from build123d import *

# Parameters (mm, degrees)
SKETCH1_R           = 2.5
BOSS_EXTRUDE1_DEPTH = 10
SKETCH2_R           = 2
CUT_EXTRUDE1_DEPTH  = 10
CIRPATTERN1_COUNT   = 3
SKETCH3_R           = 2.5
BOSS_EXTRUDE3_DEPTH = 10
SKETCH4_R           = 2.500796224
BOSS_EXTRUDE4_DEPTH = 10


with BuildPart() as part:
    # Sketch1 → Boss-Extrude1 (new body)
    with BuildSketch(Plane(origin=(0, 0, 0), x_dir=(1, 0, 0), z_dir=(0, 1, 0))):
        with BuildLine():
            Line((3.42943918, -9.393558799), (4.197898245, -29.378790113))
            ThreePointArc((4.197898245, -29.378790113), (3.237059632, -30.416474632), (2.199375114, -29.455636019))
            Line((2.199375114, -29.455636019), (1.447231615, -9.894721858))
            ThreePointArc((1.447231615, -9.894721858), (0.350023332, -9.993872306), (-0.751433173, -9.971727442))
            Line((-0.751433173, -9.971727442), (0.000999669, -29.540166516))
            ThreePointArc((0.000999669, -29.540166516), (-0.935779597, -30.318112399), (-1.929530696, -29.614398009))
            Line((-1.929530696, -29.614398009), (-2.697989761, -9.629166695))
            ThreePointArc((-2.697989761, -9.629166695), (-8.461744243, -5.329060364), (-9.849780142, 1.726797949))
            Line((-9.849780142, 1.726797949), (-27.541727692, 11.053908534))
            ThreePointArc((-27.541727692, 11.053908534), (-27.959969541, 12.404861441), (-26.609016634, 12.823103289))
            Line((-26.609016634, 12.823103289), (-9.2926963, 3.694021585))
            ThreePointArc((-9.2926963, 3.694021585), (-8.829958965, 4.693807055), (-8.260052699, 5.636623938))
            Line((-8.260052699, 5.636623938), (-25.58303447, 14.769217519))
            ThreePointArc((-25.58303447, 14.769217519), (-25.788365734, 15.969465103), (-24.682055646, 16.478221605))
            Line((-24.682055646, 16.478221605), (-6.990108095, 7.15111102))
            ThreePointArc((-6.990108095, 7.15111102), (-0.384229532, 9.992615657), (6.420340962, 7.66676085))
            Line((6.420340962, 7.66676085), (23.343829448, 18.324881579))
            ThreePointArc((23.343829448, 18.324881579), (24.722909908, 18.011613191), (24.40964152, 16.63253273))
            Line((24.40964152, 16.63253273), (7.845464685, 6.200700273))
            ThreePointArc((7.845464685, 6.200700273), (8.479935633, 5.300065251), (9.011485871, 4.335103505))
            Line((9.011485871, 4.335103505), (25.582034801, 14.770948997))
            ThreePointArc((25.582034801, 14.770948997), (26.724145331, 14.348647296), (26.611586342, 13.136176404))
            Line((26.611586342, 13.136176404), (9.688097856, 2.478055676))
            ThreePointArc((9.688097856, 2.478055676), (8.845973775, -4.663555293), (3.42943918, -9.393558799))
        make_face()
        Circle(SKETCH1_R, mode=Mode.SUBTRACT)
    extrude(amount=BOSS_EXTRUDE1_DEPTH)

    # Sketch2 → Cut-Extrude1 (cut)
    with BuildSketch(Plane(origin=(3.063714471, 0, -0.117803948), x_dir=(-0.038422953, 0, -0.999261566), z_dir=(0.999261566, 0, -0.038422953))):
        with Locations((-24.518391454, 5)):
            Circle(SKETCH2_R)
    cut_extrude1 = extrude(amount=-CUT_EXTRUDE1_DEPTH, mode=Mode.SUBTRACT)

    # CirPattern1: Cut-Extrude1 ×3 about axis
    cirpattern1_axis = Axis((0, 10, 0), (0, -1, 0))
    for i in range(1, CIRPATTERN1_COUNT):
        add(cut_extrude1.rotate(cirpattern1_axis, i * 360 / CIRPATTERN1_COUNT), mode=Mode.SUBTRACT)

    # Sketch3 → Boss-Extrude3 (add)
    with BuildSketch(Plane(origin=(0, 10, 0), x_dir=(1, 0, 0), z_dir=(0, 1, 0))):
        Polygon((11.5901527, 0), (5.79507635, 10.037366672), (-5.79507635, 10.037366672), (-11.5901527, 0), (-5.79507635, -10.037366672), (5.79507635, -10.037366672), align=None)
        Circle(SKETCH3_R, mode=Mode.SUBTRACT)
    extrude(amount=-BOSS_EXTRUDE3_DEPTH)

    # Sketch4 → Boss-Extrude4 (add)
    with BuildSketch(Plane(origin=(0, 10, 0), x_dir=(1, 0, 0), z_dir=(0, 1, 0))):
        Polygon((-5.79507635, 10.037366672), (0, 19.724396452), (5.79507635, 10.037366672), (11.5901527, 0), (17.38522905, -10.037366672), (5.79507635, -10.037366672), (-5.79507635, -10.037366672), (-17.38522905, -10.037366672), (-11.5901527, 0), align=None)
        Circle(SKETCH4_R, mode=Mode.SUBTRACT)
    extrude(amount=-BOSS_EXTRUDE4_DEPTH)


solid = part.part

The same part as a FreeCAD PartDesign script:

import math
import FreeCAD as App
import Part
import Sketcher

V = App.Vector
Q = App.Units.Quantity


def add_polygon(sketch, points):
    """Adds a closed chain of lines whose ends are joined by coincident constraints."""
    first, n = sketch.GeometryCount, len(points)
    for a, b in zip(points, points[1:] + points[:1]):
        sketch.addGeometry(Part.LineSegment(App.Vector(*a, 0), App.Vector(*b, 0)), False)
    for i in range(n):
        sketch.addConstraint(Sketcher.Constraint("Coincident", first + i, 2, first + (i + 1) % n, 1))

doc = App.newDocument("Part")
body = doc.addObject("PartDesign::Body", "Body")

sketch1 = body.newObject("Sketcher::SketchObject", "Sketch")
sketch1.AttachmentSupport = (doc.getObject("XZ_Plane"), [""])
sketch1.MapMode = "FlatFace"
sketch1.addGeometry([
    Part.LineSegment(V(4.2, 29.4, 0), V(3.4, 9.4, 0)),
    Part.ArcOfCircle(Part.Circle(V(0, 0, 0), V(0, 0, 1), 10), math.radians(-14), math.radians(70)),
    Part.LineSegment(V(9.7, -2.5, 0), V(26.6, -13.1, 0)),
    Part.ArcOfCircle(Part.Circle(V(25.9, -13.8, 0), V(0, 0, 1), 1), math.radians(-107), math.radians(43)),
    Part.LineSegment(V(25.6, -14.8, 0), V(9, -4.3, 0)),
    Part.ArcOfCircle(Part.Circle(V(0, 0, 0), V(0, 0, 1), 10), math.radians(-38.32), math.radians(-25.69)),
    Part.LineSegment(V(7.8, -6.2, 0), V(24.4, -16.6, 0)),
    Part.ArcOfCircle(Part.Circle(V(23.9, -17.5, 0), V(0, 0, 1), 1), math.radians(-122), math.radians(58)),
    Part.LineSegment(V(23.3, -18.3, 0), V(6.4, -7.7, 0)),
    Part.ArcOfCircle(Part.Circle(V(0, 0, 0), V(0, 0, 1), 10), math.radians(-134), math.radians(-50)),
    Part.LineSegment(V(-7, -7.2, 0), V(-24.7, -16.5, 0)),
    Part.ArcOfCircle(Part.Circle(V(-24.9, -15.5, 0), V(0, 0, 1), 1), math.radians(133), math.radians(283)),
    Part.LineSegment(V(-25.6, -14.8, 0), V(-8.3, -5.6, 0)),
    Part.ArcOfCircle(Part.Circle(V(0, 0, 0), V(0, 0, 1), 10), math.radians(-158.32), math.radians(-145.69)),
    Part.LineSegment(V(-9.3, -3.7, 0), V(-26.6, -12.8, 0)),
    Part.ArcOfCircle(Part.Circle(V(-27.1, -11.9, 0), V(0, 0, 1), 1), math.radians(118), math.radians(298)),
    Part.LineSegment(V(-27.5, -11.1, 0), V(-9.8, -1.7, 0)),
    Part.ArcOfCircle(Part.Circle(V(0, 0, 0), V(0, 0, 1), 10), math.radians(106), math.radians(190)),
    Part.LineSegment(V(-2.7, 9.6, 0), V(-1.9, 29.6, 0)),
    Part.ArcOfCircle(Part.Circle(V(-1, 29.3, 0), V(0, 0, 1), 1), math.radians(13), math.radians(163)),
    Part.LineSegment(V(0, 29.5, 0), V(-0.8, 10, 0)),
    Part.ArcOfCircle(Part.Circle(V(0, 0, 0), V(0, 0, 1), 10), math.radians(81.68), math.radians(94.31)),
    Part.LineSegment(V(1.4, 9.9, 0), V(2.2, 29.5, 0)),
    Part.ArcOfCircle(Part.Circle(V(3.2, 29.4, 0), V(0, 0, 1), 1), math.radians(-2), math.radians(178)),
    Part.Circle(V(0, 0, 0), V(0, 0, 1), 2.5),
], False)
sketch1.addConstraint([
    Sketcher.Constraint("Coincident", 0, 2, 1, 2),
    Sketcher.Constraint("Coincident", 1, 1, 2, 1),
    Sketcher.Constraint("Coincident", 2, 2, 3, 2),
    Sketcher.Constraint("Coincident", 3, 1, 4, 1),
    Sketcher.Constraint("Coincident", 4, 2, 5, 2),
    Sketcher.Constraint("Coincident", 5, 1, 6, 1),
    Sketcher.Constraint("Tangent", 6, 2, 7, 2),
    Sketcher.Constraint("Tangent", 7, 1, 8, 1),
    Sketcher.Constraint("Coincident", 8, 2, 9, 2),
    Sketcher.Constraint("Coincident", 9, 1, 10, 1),
    Sketcher.Constraint("Coincident", 10, 2, 11, 2),
    Sketcher.Constraint("Coincident", 11, 1, 12, 1),
    Sketcher.Constraint("Coincident", 12, 2, 13, 2),
    Sketcher.Constraint("Coincident", 13, 1, 14, 1),
    Sketcher.Constraint("Tangent", 14, 2, 15, 2),
    Sketcher.Constraint("Tangent", 15, 1, 16, 1),
    Sketcher.Constraint("Coincident", 16, 2, 17, 2),
    Sketcher.Constraint("Coincident", 17, 1, 18, 1),
    Sketcher.Constraint("Coincident", 18, 2, 19, 2),
    Sketcher.Constraint("Coincident", 19, 1, 20, 1),
    Sketcher.Constraint("Coincident", 20, 2, 21, 2),
    Sketcher.Constraint("Coincident", 21, 1, 22, 1),
    Sketcher.Constraint("Tangent", 22, 2, 23, 2),
    Sketcher.Constraint("Tangent", 23, 1, 0, 1),
    Sketcher.Constraint("Coincident", 1, 3, -1, 1),
    Sketcher.Constraint("Coincident", 5, 3, -1, 1),
    Sketcher.Constraint("Coincident", 9, 3, -1, 1),
    Sketcher.Constraint("Coincident", 13, 3, -1, 1),
    Sketcher.Constraint("Coincident", 17, 3, -1, 1),
    Sketcher.Constraint("Coincident", 21, 3, -1, 1),
    Sketcher.Constraint("Coincident", 24, 3, -1, 1),
    Sketcher.Constraint("Equal", 1, 5),
    Sketcher.Constraint("Equal", 3, 7),
    Sketcher.Constraint("Equal", 5, 9),
    Sketcher.Constraint("Equal", 7, 11),
    Sketcher.Constraint("Equal", 9, 13),
    Sketcher.Constraint("Equal", 11, 15),
    Sketcher.Constraint("Equal", 13, 17),
    Sketcher.Constraint("Equal", 15, 19),
    Sketcher.Constraint("Equal", 17, 21),
    Sketcher.Constraint("Equal", 19, 23),
    Sketcher.Constraint("Parallel", 2, 4),
    Sketcher.Constraint("Parallel", 4, 6),
    Sketcher.Constraint("Parallel", 6, 8),
    Sketcher.Constraint("Parallel", 10, 12),
    Sketcher.Constraint("Parallel", 12, 14),
    Sketcher.Constraint("Parallel", 14, 16),
    Sketcher.Constraint("Parallel", 0, 18),
    Sketcher.Constraint("Parallel", 18, 20),
    Sketcher.Constraint("Parallel", 20, 22),
    Sketcher.Constraint("Equal", 0, 2),
    Sketcher.Constraint("Equal", 2, 8),
    Sketcher.Constraint("Equal", 8, 10),
    Sketcher.Constraint("Equal", 4, 12),
    Sketcher.Constraint("Equal", 6, 14),
    Sketcher.Constraint("Equal", 10, 16),
    Sketcher.Constraint("Equal", 16, 18),
    Sketcher.Constraint("Equal", 12, 20),
    Sketcher.Constraint("Equal", 14, 22),
    Sketcher.Constraint("Diameter", 24, 5.0),
    Sketcher.Constraint("Radius", 1, 10.0),
    Sketcher.Constraint("Radius", 3, 1.0),
    Sketcher.Constraint("Distance", 0, 20.0),
    Sketcher.Constraint("DistanceX", -1, 1, 19, 1, 0.001),
    Sketcher.Constraint("DistanceY", 17, 1, 19, 1, 19.911),
    Sketcher.Constraint("Distance", 4, 19.5829),
    Sketcher.Constraint("DistanceY", 5, 1, -1, 1, 6.2007),
    Sketcher.Constraint("DistanceY", -1, 1, 18, 2, 29.614398),
    Sketcher.Constraint("DistanceX", -1, 1, 23, 1, 4.197898),
    Sketcher.Constraint("DistanceX", 7, 3, 3, 1, 1.705299),
    Sketcher.Constraint("DistanceY", 11, 3, 15, 1, 4.449201),
    Sketcher.Constraint("DistanceX", -1, 1, 3, 3, 25.877971),
    Sketcher.Constraint("DistanceX", 11, 3, -1, 1, 24.903768),
    Sketcher.Constraint("DistanceY", 11, 3, -1, 1, 15.50311),
])
pad1 = body.newObject("PartDesign::Pad", "Pad")
pad1.Profile = sketch1
pad1.Length = 10
pad1.Reversed = True

sketch2 = body.newObject("Sketcher::SketchObject", "Sketch001")
sketch2.Placement = App.Placement(V(3.063714, 0, -0.117804), App.Rotation(V(-0.038422953, 0, -0.999261566), V(0, 1.000000001, 0), V(0.999261566, 0, -0.038422953), "ZXY"))
sketch2.addGeometry(Part.Circle(V(-24.5, 5, 0), V(0, 0, 1), 2), False)
sketch2.addConstraint([
    Sketcher.Constraint("Diameter", 0, 4.0),
    Sketcher.Constraint("DistanceY", -1, 1, 0, 3, 5.0),
    Sketcher.Constraint("DistanceX", 0, 3, -1, 1, 24.518391),
])
pocket1 = body.newObject("PartDesign::Pocket", "Pocket")
pocket1.Profile = sketch2
pocket1.Length = 10
doc.recompute()

polarpattern = body.newObject("PartDesign::PolarPattern", "PolarPattern")
polarpattern.Originals = [pocket1]
polarpattern.Axis = (doc.getObject("Y_Axis"), [""])
polarpattern.Angle = 360
polarpattern.Occurrences = 3
body.Tip = polarpattern

sketch3 = body.newObject("Sketcher::SketchObject", "Sketch002")
sketch3.AttachmentSupport = (doc.getObject("XZ_Plane"), [""])
sketch3.MapMode = "FlatFace"
sketch3.AttachmentOffset = App.Placement(V(0, 0, -10), App.Rotation())
add_polygon(sketch3, [(11.6, 0), (5.8, -10), (-5.8, -10), (-11.6, 0), (-5.8, 10), (5.8, 10)])
sketch3.addGeometry(Part.Circle(V(0, 0, 0), V(0, 0, 1), 2.5), False)
sketch3.addConstraint([
    Sketcher.Constraint("Horizontal", 1),
    Sketcher.Constraint("Horizontal", 4),
    Sketcher.Constraint("Coincident", 6, 3, -1, 1),
    Sketcher.Constraint("Symmetric", 0, 2, 3, 2, -1, 1),
    Sketcher.Constraint("Symmetric", 2, 2, 5, 2, -1, 1),
    Sketcher.Constraint("PointOnObject", 2, 2, -1),
    Sketcher.Constraint("Parallel", 2, 5),
    Sketcher.Constraint("Vertical", 1, 2, 3, 2),
    Sketcher.Constraint("Diameter", 6, 5.0),
    Sketcher.Constraint("Angle", 0, Q("-120 deg")),
    Sketcher.Constraint("DistanceX", 1, 2, 1, 1, 11.590153),
    Sketcher.Constraint("DistanceX", 2, 2, 0, 2, 17.385229),
])
pad2 = body.newObject("PartDesign::Pad", "Pad001")
pad2.Profile = sketch3
pad2.Length = 10

sketch4 = body.newObject("Sketcher::SketchObject", "Sketch003")
sketch4.AttachmentSupport = (doc.getObject("XZ_Plane"), [""])
sketch4.MapMode = "FlatFace"
sketch4.AttachmentOffset = App.Placement(V(0, 0, -10), App.Rotation())
add_polygon(sketch4, [(0, -19.7), (-5.8, -10), (-17.4, 10), (17.4, 10), (5.8, -10)])
sketch4.addGeometry(Part.Circle(V(0, 0, 0), V(0, 0, 1), 2.5), False)
sketch4.addConstraint([
    Sketcher.Constraint("Horizontal", 2),
    Sketcher.Constraint("Coincident", 5, 3, -1, 1),
    Sketcher.Constraint("Symmetric", 0, 2, 3, 2, -2),
    Sketcher.Constraint("PointOnObject", 4, 2, -2),
    Sketcher.Constraint("Equal", 1, 3),
    Sketcher.Constraint("Angle", 1, Q("120 deg")),
    Sketcher.Constraint("Diameter", 5, 5.001592),
    Sketcher.Constraint("DistanceX", 2, 1, 2, 2, 34.770458),
    Sketcher.Constraint("Distance", 0, 11.288111),
    Sketcher.Constraint("DistanceY", 4, 2, 0, 2, 9.68703),
    Sketcher.Constraint("DistanceY", 0, 2, -1, 1, 10.037367),
])
pad3 = body.newObject("PartDesign::Pad", "Pad002")
pad3.Profile = sketch4
pad3.Length = 10

doc.recompute()
